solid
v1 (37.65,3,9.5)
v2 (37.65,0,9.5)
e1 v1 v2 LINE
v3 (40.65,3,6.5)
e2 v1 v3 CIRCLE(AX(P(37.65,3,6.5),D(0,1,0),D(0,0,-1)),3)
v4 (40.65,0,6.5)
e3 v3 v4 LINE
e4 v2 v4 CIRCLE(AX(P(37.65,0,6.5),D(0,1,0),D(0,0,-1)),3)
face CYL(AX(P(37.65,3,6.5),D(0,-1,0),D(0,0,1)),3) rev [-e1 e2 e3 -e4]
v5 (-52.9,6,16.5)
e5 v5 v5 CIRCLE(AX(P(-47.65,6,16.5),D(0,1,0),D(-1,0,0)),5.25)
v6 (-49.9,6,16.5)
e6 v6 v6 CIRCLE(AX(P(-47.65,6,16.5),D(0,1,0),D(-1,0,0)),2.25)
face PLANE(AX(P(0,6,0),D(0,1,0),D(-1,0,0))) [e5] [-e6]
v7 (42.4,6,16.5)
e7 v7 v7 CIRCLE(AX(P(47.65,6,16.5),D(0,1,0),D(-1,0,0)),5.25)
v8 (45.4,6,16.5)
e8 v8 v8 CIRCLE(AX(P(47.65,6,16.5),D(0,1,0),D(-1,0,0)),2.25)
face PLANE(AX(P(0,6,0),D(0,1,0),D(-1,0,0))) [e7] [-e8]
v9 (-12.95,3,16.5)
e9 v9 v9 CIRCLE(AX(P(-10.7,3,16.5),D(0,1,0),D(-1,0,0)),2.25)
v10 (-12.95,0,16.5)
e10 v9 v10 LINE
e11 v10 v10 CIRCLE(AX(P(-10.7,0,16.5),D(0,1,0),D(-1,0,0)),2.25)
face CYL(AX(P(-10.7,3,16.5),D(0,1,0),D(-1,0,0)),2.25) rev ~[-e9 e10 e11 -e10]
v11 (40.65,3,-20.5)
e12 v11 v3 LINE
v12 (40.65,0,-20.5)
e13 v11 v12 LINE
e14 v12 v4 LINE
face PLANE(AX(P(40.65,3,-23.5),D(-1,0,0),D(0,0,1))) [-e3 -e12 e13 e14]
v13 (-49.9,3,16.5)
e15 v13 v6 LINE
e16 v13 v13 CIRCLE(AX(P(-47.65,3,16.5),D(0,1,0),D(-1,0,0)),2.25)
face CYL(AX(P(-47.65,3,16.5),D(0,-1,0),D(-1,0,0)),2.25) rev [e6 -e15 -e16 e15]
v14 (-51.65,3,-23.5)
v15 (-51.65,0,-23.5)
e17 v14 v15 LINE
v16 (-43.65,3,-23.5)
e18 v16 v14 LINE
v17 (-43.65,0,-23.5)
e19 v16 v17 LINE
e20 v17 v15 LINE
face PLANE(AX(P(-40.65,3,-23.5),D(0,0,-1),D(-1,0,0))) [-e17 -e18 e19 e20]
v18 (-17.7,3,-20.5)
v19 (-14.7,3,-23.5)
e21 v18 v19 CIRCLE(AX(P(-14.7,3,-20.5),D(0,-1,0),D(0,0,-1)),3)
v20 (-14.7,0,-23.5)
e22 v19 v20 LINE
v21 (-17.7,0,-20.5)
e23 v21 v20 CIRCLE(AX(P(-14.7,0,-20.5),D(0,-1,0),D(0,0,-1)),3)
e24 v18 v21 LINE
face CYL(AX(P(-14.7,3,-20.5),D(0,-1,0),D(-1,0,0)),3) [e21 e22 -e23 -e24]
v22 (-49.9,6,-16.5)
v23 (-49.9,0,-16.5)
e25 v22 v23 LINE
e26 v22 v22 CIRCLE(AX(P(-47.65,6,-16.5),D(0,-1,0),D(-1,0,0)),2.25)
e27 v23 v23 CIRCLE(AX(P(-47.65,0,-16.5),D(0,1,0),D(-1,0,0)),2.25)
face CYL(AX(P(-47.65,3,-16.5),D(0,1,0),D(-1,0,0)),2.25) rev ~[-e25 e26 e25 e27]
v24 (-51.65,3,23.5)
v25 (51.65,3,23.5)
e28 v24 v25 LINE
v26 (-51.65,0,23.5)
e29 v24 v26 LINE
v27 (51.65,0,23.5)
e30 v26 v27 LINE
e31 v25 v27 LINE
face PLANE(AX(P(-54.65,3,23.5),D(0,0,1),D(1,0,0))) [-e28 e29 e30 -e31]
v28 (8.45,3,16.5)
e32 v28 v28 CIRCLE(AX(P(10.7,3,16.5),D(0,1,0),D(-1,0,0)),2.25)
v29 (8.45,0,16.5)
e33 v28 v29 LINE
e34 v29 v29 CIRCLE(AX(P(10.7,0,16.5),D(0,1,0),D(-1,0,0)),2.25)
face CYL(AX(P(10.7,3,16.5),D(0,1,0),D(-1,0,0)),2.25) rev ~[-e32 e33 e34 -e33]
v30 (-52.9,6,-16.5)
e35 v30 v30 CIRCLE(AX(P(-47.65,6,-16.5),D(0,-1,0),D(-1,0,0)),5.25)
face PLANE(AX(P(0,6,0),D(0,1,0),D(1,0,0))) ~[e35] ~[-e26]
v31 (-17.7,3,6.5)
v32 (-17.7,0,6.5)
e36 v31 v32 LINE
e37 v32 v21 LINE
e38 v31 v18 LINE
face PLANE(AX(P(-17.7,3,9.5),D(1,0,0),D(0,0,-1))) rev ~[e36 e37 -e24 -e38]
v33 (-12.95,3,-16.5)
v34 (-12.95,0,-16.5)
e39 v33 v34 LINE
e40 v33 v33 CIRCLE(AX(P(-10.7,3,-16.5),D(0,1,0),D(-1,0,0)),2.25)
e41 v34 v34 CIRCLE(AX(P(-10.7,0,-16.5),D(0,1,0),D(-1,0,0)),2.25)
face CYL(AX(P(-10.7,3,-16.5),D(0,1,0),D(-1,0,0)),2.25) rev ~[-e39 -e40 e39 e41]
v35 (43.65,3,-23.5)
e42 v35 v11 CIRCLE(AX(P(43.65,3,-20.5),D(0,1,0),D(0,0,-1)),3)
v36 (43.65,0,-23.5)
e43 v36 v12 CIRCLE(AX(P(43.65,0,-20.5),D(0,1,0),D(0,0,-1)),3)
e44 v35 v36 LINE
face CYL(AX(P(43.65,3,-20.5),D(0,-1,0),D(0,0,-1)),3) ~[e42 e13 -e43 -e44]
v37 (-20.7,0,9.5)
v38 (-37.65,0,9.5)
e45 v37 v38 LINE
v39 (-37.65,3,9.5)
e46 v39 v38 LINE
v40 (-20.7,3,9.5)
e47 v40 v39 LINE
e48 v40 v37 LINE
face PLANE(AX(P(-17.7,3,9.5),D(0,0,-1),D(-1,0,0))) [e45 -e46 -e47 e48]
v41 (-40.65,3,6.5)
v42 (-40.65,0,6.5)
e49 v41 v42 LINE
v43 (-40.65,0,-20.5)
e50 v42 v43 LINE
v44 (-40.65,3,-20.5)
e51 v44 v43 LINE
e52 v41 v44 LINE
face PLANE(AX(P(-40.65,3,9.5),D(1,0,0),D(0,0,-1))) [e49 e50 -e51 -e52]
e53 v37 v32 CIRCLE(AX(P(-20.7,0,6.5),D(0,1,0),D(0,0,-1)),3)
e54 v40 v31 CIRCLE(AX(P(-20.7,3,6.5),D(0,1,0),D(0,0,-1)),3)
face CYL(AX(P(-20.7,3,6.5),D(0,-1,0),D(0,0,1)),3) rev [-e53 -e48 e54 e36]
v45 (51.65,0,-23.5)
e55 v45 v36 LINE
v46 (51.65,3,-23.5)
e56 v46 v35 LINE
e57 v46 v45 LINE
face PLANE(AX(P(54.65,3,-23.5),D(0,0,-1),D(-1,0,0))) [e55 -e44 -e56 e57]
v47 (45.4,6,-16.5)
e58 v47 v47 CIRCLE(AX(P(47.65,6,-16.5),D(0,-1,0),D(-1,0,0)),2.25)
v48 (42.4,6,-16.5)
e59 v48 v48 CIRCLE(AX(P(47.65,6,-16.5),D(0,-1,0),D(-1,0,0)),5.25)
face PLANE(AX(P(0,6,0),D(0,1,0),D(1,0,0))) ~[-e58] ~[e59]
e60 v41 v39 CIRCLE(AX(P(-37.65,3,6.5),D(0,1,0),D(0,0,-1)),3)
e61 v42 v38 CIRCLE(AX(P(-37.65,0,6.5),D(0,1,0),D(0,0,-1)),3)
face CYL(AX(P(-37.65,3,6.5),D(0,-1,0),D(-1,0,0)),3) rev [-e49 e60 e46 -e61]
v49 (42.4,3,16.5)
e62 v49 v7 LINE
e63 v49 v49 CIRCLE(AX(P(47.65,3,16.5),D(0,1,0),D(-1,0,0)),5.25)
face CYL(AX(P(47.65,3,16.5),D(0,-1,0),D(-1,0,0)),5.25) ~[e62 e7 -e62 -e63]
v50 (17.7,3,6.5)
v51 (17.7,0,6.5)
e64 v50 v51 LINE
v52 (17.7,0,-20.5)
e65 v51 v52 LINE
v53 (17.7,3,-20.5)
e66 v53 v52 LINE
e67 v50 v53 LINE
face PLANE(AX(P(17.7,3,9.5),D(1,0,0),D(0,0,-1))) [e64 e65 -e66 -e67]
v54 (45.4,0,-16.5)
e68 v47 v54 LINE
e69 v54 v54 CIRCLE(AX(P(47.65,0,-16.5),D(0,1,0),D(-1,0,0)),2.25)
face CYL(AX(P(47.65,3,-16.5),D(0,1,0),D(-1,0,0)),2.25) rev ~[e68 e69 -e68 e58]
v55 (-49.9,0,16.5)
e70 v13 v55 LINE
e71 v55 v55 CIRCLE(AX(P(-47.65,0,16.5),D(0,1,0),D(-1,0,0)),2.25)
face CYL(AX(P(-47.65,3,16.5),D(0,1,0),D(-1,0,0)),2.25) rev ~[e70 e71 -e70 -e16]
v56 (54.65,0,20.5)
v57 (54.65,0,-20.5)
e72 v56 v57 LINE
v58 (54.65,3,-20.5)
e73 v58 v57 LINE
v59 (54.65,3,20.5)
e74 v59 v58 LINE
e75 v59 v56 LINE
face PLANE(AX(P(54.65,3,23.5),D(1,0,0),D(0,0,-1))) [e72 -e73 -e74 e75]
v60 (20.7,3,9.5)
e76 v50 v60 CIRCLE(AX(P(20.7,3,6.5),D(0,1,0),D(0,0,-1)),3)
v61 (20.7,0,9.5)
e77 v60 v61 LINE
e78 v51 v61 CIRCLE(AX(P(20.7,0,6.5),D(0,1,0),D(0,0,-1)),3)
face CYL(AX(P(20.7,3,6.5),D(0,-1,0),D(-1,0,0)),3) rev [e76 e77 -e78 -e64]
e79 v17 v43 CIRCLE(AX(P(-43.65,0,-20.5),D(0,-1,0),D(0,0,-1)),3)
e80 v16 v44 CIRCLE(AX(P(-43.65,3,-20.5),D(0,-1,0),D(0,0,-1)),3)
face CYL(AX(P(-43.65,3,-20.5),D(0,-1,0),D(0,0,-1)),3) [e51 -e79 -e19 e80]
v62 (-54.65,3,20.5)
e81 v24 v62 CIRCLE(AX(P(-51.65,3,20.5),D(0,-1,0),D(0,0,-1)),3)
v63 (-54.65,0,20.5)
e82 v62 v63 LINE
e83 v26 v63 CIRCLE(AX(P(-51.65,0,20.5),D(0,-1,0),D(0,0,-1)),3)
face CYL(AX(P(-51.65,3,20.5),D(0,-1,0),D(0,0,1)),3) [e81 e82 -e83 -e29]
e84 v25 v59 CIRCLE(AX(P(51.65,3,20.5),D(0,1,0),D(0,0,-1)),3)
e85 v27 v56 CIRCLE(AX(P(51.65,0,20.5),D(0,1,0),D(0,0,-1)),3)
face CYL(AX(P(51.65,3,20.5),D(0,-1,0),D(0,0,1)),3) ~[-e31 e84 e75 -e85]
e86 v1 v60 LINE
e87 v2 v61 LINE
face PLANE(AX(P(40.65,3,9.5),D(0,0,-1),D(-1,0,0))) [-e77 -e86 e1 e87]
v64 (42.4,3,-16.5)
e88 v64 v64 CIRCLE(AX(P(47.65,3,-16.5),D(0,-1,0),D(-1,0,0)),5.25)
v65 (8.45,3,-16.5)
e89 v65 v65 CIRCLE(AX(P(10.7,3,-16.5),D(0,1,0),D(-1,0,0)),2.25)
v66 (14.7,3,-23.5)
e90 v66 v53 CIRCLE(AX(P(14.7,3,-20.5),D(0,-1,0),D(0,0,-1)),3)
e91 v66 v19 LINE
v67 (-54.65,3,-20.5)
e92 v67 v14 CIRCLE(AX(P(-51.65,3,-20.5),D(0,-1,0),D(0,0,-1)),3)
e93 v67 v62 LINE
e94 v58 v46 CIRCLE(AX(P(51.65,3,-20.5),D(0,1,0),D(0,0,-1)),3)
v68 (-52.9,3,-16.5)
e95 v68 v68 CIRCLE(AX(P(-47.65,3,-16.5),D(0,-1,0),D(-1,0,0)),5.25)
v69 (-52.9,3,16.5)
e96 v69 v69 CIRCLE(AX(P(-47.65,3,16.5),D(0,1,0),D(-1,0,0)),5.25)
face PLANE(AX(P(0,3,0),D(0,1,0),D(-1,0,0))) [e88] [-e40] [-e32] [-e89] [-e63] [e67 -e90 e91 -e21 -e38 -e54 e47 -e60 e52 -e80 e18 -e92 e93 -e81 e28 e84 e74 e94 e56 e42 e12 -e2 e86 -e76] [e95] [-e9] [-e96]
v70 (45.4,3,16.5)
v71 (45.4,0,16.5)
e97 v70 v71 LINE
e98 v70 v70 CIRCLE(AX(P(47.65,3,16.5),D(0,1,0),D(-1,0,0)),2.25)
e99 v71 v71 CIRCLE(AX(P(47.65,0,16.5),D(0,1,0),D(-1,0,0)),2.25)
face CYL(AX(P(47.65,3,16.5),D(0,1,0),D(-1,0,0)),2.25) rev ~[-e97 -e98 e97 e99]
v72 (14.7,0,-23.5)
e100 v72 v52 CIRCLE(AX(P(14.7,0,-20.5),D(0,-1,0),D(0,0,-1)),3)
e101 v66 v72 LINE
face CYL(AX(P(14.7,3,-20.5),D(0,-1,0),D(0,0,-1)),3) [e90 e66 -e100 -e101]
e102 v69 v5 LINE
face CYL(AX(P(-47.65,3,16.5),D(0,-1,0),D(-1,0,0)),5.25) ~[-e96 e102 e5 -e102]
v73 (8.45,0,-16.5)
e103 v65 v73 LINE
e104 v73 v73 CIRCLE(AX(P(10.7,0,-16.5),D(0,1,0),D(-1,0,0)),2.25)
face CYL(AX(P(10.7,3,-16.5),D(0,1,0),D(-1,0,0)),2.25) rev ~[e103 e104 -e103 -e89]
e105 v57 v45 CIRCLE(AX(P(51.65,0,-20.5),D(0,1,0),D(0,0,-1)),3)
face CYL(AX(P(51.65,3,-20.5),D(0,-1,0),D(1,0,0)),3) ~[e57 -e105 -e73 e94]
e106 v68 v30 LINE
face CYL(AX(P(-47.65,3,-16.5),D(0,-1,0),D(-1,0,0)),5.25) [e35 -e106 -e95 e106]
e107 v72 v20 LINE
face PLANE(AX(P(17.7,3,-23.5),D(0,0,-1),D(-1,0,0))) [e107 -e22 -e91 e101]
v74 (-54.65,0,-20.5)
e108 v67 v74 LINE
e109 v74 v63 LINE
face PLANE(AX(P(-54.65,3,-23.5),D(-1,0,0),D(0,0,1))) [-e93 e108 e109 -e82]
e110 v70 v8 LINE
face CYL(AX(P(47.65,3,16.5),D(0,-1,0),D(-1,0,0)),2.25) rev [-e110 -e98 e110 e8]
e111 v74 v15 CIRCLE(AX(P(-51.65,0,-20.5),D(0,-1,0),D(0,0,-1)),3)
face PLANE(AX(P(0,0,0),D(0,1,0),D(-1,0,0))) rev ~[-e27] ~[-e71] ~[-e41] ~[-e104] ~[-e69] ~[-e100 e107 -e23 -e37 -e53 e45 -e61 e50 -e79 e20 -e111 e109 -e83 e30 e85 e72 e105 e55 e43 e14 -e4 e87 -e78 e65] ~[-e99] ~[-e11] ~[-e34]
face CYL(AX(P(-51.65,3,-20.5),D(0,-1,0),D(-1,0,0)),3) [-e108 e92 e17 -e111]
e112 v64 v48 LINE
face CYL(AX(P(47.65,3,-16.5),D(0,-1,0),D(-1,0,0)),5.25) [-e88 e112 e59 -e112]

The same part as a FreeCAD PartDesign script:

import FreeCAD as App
import Part
import Sketcher
Q = App.Units.Quantity


def edges_at(feature, points):
    """Names of the edges that pass closest to the given points."""
    edges = feature.Shape.Edges
    near = lambda p: min(range(len(edges)), key=lambda i: edges[i].distToShape(Part.Vertex(*p))[0])
    return sorted({f"Edge{near(p) + 1}" for p in points})

doc = App.newDocument("Part")
params = doc.addObject("Spreadsheet::Sheet", "Params")
for row, (alias, value) in enumerate([
    ("sketch1_diameter", "4.5 mm"),
    ("sketch1_height", "47 mm"),
    ("sketch1_width", "109.3 mm"),
    ("sketch1_width2", "35.4 mm"),
    ("pad1_length", "3 mm"),
    ("fillet_radius", "3 mm"),
    ("sketch2_diameter", "10.5 mm"),
    ("sketch2_diameter2", "4.5 mm"),
    ("pad2_length", "3 mm"),
], start=1):
    params.set(f"A{row}", alias)
    params.set(f"B{row}", "=" + value)
    params.setAlias(f"B{row}", alias)

body = doc.addObject("PartDesign::Body", "Body")

sketch1 = body.newObject("Sketcher::SketchObject", "Sketch")
sketch1.AttachmentSupport = (doc.getObject("XZ_Plane"), [""])
sketch1.MapMode = "FlatFace"
sketch1.AttachmentOffset = App.Placement(App.Vector(0, 0, -3), App.Rotation())
sketch1.addGeometry([
    Part.LineSegment(App.Vector(-54.6, 23.5, 0), App.Vector(54.6, 23.5, 0)),
    Part.LineSegment(App.Vector(54.6, 23.5, 0), App.Vector(54.6, -23.5, 0)),
    Part.LineSegment(App.Vector(54.6, -23.5, 0), App.Vector(40.6, -23.5, 0)),
    Part.LineSegment(App.Vector(40.6, -23.5, 0), App.Vector(40.6, 9.5, 0)),
    Part.LineSegment(App.Vector(40.6, 9.5, 0), App.Vector(17.7, 9.5, 0)),
    Part.LineSegment(App.Vector(17.7, 9.5, 0), App.Vector(17.7, -23.5, 0)),
    Part.LineSegment(App.Vector(17.7, -23.5, 0), App.Vector(-17.7, -23.5, 0)),
    Part.LineSegment(App.Vector(-17.7, -23.5, 0), App.Vector(-17.7, 9.5, 0)),
    Part.LineSegment(App.Vector(-17.7, 9.5, 0), App.Vector(-40.6, 9.5, 0)),
    Part.LineSegment(App.Vector(-40.6, 9.5, 0), App.Vector(-40.6, -23.5, 0)),
    Part.LineSegment(App.Vector(-40.6, -23.5, 0), App.Vector(-54.6, -23.5, 0)),
    Part.LineSegment(App.Vector(-54.6, -23.5, 0), App.Vector(-54.6, 23.5, 0)),
    Part.Circle(App.Vector(47.6, -16.5, 0), App.Vector(0, 0, 1), 2.2),
    Part.Circle(App.Vector(10.7, -16.5, 0), App.Vector(0, 0, 1), 2.2),
    Part.Circle(App.Vector(-10.7, -16.5, 0), App.Vector(0, 0, 1), 2.2),
    Part.Circle(App.Vector(-47.6, -16.5, 0), App.Vector(0, 0, 1), 2.2),
    Part.Circle(App.Vector(10.7, 16.5, 0), App.Vector(0, 0, 1), 2.2),
    Part.Circle(App.Vector(-10.7, 16.5, 0), App.Vector(0, 0, 1), 2.2),
    Part.Circle(App.Vector(47.6, 16.5, 0), App.Vector(0, 0, 1), 2.2),
    Part.Circle(App.Vector(-47.6, 16.5, 0), App.Vector(0, 0, 1), 2.2),
], False)
sketch1.addConstraint([
    Sketcher.Constraint("Coincident", 0, 2, 1, 1),
    Sketcher.Constraint("Coincident", 1, 2, 2, 1),
    Sketcher.Constraint("Coincident", 2, 2, 3, 1),
    Sketcher.Constraint("Coincident", 3, 2, 4, 1),
    Sketcher.Constraint("Coincident", 4, 2, 5, 1),
    Sketcher.Constraint("Coincident", 5, 2, 6, 1),
    Sketcher.Constraint("Coincident", 6, 2, 7, 1),
    Sketcher.Constraint("Coincident", 7, 2, 8, 1),
    Sketcher.Constraint("Coincident", 8, 2, 9, 1),
    Sketcher.Constraint("Coincident", 9, 2, 10, 1),
    Sketcher.Constraint("Coincident", 10, 2, 11, 1),
    Sketcher.Constraint("Coincident", 11, 2, 0, 1),
    Sketcher.Constraint("Horizontal", 0),
    Sketcher.Constraint("Vertical", 1),
    Sketcher.Constraint("Horizontal", 2),
    Sketcher.Constraint("Vertical", 3),
    Sketcher.Constraint("Horizontal", 4),
    Sketcher.Constraint("Vertical", 5),
    Sketcher.Constraint("Horizontal", 6),
    Sketcher.Constraint("Vertical", 7),
    Sketcher.Constraint("Horizontal", 8),
    Sketcher.Constraint("Vertical", 9),
    Sketcher.Constraint("Horizontal", 10),
    Sketcher.Constraint("Vertical", 11),
    Sketcher.Constraint("Equal", 12, 13),
    Sketcher.Constraint("Equal", 13, 14),
    Sketcher.Constraint("Equal", 14, 15),
    Sketcher.Constraint("Equal", 15, 16),
    Sketcher.Constraint("Equal", 16, 17),
    Sketcher.Constraint("Equal", 17, 18),
    Sketcher.Constraint("Equal", 18, 19),
    Sketcher.Constraint("Symmetric", 14, 3, 16, 3, -1, 1),
    Sketcher.Constraint("Symmetric", 13, 3, 17, 3, -1, 1),
    Sketcher.Constraint("Symmetric", 15, 3, 18, 3, -1, 1),
    Sketcher.Constraint("Symmetric", 12, 3, 19, 3, -1, 1),
    Sketcher.Constraint("Symmetric", 0, 2, 10, 2, -1, 1),
    Sketcher.Constraint("Symmetric", 13, 3, 14, 3, -2),
    Sketcher.Constraint("Symmetric", 12, 3, 15, 3, -2),
    Sketcher.Constraint("Symmetric", 4, 2, 7, 2, -2),
    Sketcher.Constraint("Symmetric", 2, 2, 9, 2, -2),
    Sketcher.Constraint("Horizontal", 12, 3, 13, 3),
    Sketcher.Constraint("Horizontal", 2, 2, 5, 2),
    Sketcher.Constraint("DistanceX", 18, 3, 0, 2, Q("7 mm")),
    Sketcher.Constraint("DistanceY", 18, 3, 0, 2, Q("7 mm")),
    Sketcher.Constraint("DistanceX", 2, 2, 12, 3, Q("7 mm")),
    Sketcher.Constraint("DistanceY", 3, 2, 18, 3, Q("7 mm")),
    Sketcher.Constraint("DistanceX", 16, 3, 4, 2, Q("7 mm")),
    Sketcher.Constraint("Diameter", 12, Q("4.5 mm")),
    Sketcher.Constraint("DistanceY", 1, 2, 1, 1, Q("47 mm")),
    Sketcher.Constraint("DistanceX", 0, 1, 0, 2, Q("109.3 mm")),
    Sketcher.Constraint("DistanceX", 6, 2, 6, 1, Q("35.4 mm")),
])
sketch1.setExpression("Constraints[47]", "Params.sketch1_diameter")
sketch1.setExpression("Constraints[48]", "Params.sketch1_height")
sketch1.setExpression("Constraints[49]", "Params.sketch1_width")
sketch1.setExpression("Constraints[50]", "Params.sketch1_width2")
pad1 = body.newObject("PartDesign::Pad", "Pad")
pad1.Profile = sketch1
pad1.setExpression("Length", "Params.pad1_length")
doc.recompute()

fillet = body.newObject("PartDesign::Fillet", "Fillet")
fillet.Base = (pad1, edges_at(pad1, [
    (54.65, 1.5, 23.5),
    (54.65, 1.5, -23.5),
    (40.65, 1.5, -23.5),
    (40.65, 1.5, 9.5),
    (17.7, 1.5, 9.5),
    (17.7, 1.5, -23.5),
    (-17.7, 1.5, -23.5),
    (-17.7, 1.5, 9.5),
    (-40.65, 1.5, 9.5),
    (-40.65, 1.5, -23.5),
    (-54.65, 1.5, -23.5),
    (-54.65, 1.5, 23.5),
]))
fillet.setExpression("Radius", "Params.fillet_radius")

sketch2 = body.newObject("Sketcher::SketchObject", "Sketch001")
sketch2.AttachmentSupport = (doc.getObject("XZ_Plane"), [""])
sketch2.MapMode = "FlatFace"
sketch2.AttachmentOffset = App.Placement(App.Vector(0, 0, -3), App.Rotation())
sketch2.addGeometry([
    Part.Circle(App.Vector(47.6, 16.5, 0), App.Vector(0, 0, 1), 5.2),
    Part.Circle(App.Vector(47.6, 16.5, 0), App.Vector(0, 0, 1), 2.2),
    Part.Circle(App.Vector(-47.6, 16.5, 0), App.Vector(0, 0, 1), 5.2),
    Part.Circle(App.Vector(-47.6, 16.5, 0), App.Vector(0, 0, 1), 2.2),
], False)
sketch2.addConstraint([
    Sketcher.Constraint("Coincident", 1, 3, 0, 3),
    Sketcher.Constraint("Coincident", 3, 3, 2, 3),
    Sketcher.Constraint("Equal", 0, 2),
    Sketcher.Constraint("Equal", 1, 3),
    Sketcher.Constraint("Symmetric", 0, 3, 2, 3, -2),
    Sketcher.Constraint("Diameter", 0, Q("10.5 mm")),
    Sketcher.Constraint("Diameter", 1, Q("4.5 mm")),
    Sketcher.Constraint("DistanceY", -1, 1, 0, 3, Q("16.5 mm")),
    Sketcher.Constraint("DistanceX", 2, 3, 0, 3, Q("95.3 mm")),
])
sketch2.setExpression("Constraints[5]", "Params.sketch2_diameter")
sketch2.setExpression("Constraints[6]", "Params.sketch2_diameter2")
pad2 = body.newObject("PartDesign::Pad", "Pad001")
pad2.Profile = sketch2
pad2.setExpression("Length", "Params.pad2_length")
pad2.Reversed = True
doc.recompute()

mirrored = body.newObject("PartDesign::Mirrored", "Mirrored")
mirrored.Originals = [pad2]
mirrored.MirrorPlane = (doc.getObject("XY_Plane"), [""])
body.Tip = mirrored

doc.recompute()
